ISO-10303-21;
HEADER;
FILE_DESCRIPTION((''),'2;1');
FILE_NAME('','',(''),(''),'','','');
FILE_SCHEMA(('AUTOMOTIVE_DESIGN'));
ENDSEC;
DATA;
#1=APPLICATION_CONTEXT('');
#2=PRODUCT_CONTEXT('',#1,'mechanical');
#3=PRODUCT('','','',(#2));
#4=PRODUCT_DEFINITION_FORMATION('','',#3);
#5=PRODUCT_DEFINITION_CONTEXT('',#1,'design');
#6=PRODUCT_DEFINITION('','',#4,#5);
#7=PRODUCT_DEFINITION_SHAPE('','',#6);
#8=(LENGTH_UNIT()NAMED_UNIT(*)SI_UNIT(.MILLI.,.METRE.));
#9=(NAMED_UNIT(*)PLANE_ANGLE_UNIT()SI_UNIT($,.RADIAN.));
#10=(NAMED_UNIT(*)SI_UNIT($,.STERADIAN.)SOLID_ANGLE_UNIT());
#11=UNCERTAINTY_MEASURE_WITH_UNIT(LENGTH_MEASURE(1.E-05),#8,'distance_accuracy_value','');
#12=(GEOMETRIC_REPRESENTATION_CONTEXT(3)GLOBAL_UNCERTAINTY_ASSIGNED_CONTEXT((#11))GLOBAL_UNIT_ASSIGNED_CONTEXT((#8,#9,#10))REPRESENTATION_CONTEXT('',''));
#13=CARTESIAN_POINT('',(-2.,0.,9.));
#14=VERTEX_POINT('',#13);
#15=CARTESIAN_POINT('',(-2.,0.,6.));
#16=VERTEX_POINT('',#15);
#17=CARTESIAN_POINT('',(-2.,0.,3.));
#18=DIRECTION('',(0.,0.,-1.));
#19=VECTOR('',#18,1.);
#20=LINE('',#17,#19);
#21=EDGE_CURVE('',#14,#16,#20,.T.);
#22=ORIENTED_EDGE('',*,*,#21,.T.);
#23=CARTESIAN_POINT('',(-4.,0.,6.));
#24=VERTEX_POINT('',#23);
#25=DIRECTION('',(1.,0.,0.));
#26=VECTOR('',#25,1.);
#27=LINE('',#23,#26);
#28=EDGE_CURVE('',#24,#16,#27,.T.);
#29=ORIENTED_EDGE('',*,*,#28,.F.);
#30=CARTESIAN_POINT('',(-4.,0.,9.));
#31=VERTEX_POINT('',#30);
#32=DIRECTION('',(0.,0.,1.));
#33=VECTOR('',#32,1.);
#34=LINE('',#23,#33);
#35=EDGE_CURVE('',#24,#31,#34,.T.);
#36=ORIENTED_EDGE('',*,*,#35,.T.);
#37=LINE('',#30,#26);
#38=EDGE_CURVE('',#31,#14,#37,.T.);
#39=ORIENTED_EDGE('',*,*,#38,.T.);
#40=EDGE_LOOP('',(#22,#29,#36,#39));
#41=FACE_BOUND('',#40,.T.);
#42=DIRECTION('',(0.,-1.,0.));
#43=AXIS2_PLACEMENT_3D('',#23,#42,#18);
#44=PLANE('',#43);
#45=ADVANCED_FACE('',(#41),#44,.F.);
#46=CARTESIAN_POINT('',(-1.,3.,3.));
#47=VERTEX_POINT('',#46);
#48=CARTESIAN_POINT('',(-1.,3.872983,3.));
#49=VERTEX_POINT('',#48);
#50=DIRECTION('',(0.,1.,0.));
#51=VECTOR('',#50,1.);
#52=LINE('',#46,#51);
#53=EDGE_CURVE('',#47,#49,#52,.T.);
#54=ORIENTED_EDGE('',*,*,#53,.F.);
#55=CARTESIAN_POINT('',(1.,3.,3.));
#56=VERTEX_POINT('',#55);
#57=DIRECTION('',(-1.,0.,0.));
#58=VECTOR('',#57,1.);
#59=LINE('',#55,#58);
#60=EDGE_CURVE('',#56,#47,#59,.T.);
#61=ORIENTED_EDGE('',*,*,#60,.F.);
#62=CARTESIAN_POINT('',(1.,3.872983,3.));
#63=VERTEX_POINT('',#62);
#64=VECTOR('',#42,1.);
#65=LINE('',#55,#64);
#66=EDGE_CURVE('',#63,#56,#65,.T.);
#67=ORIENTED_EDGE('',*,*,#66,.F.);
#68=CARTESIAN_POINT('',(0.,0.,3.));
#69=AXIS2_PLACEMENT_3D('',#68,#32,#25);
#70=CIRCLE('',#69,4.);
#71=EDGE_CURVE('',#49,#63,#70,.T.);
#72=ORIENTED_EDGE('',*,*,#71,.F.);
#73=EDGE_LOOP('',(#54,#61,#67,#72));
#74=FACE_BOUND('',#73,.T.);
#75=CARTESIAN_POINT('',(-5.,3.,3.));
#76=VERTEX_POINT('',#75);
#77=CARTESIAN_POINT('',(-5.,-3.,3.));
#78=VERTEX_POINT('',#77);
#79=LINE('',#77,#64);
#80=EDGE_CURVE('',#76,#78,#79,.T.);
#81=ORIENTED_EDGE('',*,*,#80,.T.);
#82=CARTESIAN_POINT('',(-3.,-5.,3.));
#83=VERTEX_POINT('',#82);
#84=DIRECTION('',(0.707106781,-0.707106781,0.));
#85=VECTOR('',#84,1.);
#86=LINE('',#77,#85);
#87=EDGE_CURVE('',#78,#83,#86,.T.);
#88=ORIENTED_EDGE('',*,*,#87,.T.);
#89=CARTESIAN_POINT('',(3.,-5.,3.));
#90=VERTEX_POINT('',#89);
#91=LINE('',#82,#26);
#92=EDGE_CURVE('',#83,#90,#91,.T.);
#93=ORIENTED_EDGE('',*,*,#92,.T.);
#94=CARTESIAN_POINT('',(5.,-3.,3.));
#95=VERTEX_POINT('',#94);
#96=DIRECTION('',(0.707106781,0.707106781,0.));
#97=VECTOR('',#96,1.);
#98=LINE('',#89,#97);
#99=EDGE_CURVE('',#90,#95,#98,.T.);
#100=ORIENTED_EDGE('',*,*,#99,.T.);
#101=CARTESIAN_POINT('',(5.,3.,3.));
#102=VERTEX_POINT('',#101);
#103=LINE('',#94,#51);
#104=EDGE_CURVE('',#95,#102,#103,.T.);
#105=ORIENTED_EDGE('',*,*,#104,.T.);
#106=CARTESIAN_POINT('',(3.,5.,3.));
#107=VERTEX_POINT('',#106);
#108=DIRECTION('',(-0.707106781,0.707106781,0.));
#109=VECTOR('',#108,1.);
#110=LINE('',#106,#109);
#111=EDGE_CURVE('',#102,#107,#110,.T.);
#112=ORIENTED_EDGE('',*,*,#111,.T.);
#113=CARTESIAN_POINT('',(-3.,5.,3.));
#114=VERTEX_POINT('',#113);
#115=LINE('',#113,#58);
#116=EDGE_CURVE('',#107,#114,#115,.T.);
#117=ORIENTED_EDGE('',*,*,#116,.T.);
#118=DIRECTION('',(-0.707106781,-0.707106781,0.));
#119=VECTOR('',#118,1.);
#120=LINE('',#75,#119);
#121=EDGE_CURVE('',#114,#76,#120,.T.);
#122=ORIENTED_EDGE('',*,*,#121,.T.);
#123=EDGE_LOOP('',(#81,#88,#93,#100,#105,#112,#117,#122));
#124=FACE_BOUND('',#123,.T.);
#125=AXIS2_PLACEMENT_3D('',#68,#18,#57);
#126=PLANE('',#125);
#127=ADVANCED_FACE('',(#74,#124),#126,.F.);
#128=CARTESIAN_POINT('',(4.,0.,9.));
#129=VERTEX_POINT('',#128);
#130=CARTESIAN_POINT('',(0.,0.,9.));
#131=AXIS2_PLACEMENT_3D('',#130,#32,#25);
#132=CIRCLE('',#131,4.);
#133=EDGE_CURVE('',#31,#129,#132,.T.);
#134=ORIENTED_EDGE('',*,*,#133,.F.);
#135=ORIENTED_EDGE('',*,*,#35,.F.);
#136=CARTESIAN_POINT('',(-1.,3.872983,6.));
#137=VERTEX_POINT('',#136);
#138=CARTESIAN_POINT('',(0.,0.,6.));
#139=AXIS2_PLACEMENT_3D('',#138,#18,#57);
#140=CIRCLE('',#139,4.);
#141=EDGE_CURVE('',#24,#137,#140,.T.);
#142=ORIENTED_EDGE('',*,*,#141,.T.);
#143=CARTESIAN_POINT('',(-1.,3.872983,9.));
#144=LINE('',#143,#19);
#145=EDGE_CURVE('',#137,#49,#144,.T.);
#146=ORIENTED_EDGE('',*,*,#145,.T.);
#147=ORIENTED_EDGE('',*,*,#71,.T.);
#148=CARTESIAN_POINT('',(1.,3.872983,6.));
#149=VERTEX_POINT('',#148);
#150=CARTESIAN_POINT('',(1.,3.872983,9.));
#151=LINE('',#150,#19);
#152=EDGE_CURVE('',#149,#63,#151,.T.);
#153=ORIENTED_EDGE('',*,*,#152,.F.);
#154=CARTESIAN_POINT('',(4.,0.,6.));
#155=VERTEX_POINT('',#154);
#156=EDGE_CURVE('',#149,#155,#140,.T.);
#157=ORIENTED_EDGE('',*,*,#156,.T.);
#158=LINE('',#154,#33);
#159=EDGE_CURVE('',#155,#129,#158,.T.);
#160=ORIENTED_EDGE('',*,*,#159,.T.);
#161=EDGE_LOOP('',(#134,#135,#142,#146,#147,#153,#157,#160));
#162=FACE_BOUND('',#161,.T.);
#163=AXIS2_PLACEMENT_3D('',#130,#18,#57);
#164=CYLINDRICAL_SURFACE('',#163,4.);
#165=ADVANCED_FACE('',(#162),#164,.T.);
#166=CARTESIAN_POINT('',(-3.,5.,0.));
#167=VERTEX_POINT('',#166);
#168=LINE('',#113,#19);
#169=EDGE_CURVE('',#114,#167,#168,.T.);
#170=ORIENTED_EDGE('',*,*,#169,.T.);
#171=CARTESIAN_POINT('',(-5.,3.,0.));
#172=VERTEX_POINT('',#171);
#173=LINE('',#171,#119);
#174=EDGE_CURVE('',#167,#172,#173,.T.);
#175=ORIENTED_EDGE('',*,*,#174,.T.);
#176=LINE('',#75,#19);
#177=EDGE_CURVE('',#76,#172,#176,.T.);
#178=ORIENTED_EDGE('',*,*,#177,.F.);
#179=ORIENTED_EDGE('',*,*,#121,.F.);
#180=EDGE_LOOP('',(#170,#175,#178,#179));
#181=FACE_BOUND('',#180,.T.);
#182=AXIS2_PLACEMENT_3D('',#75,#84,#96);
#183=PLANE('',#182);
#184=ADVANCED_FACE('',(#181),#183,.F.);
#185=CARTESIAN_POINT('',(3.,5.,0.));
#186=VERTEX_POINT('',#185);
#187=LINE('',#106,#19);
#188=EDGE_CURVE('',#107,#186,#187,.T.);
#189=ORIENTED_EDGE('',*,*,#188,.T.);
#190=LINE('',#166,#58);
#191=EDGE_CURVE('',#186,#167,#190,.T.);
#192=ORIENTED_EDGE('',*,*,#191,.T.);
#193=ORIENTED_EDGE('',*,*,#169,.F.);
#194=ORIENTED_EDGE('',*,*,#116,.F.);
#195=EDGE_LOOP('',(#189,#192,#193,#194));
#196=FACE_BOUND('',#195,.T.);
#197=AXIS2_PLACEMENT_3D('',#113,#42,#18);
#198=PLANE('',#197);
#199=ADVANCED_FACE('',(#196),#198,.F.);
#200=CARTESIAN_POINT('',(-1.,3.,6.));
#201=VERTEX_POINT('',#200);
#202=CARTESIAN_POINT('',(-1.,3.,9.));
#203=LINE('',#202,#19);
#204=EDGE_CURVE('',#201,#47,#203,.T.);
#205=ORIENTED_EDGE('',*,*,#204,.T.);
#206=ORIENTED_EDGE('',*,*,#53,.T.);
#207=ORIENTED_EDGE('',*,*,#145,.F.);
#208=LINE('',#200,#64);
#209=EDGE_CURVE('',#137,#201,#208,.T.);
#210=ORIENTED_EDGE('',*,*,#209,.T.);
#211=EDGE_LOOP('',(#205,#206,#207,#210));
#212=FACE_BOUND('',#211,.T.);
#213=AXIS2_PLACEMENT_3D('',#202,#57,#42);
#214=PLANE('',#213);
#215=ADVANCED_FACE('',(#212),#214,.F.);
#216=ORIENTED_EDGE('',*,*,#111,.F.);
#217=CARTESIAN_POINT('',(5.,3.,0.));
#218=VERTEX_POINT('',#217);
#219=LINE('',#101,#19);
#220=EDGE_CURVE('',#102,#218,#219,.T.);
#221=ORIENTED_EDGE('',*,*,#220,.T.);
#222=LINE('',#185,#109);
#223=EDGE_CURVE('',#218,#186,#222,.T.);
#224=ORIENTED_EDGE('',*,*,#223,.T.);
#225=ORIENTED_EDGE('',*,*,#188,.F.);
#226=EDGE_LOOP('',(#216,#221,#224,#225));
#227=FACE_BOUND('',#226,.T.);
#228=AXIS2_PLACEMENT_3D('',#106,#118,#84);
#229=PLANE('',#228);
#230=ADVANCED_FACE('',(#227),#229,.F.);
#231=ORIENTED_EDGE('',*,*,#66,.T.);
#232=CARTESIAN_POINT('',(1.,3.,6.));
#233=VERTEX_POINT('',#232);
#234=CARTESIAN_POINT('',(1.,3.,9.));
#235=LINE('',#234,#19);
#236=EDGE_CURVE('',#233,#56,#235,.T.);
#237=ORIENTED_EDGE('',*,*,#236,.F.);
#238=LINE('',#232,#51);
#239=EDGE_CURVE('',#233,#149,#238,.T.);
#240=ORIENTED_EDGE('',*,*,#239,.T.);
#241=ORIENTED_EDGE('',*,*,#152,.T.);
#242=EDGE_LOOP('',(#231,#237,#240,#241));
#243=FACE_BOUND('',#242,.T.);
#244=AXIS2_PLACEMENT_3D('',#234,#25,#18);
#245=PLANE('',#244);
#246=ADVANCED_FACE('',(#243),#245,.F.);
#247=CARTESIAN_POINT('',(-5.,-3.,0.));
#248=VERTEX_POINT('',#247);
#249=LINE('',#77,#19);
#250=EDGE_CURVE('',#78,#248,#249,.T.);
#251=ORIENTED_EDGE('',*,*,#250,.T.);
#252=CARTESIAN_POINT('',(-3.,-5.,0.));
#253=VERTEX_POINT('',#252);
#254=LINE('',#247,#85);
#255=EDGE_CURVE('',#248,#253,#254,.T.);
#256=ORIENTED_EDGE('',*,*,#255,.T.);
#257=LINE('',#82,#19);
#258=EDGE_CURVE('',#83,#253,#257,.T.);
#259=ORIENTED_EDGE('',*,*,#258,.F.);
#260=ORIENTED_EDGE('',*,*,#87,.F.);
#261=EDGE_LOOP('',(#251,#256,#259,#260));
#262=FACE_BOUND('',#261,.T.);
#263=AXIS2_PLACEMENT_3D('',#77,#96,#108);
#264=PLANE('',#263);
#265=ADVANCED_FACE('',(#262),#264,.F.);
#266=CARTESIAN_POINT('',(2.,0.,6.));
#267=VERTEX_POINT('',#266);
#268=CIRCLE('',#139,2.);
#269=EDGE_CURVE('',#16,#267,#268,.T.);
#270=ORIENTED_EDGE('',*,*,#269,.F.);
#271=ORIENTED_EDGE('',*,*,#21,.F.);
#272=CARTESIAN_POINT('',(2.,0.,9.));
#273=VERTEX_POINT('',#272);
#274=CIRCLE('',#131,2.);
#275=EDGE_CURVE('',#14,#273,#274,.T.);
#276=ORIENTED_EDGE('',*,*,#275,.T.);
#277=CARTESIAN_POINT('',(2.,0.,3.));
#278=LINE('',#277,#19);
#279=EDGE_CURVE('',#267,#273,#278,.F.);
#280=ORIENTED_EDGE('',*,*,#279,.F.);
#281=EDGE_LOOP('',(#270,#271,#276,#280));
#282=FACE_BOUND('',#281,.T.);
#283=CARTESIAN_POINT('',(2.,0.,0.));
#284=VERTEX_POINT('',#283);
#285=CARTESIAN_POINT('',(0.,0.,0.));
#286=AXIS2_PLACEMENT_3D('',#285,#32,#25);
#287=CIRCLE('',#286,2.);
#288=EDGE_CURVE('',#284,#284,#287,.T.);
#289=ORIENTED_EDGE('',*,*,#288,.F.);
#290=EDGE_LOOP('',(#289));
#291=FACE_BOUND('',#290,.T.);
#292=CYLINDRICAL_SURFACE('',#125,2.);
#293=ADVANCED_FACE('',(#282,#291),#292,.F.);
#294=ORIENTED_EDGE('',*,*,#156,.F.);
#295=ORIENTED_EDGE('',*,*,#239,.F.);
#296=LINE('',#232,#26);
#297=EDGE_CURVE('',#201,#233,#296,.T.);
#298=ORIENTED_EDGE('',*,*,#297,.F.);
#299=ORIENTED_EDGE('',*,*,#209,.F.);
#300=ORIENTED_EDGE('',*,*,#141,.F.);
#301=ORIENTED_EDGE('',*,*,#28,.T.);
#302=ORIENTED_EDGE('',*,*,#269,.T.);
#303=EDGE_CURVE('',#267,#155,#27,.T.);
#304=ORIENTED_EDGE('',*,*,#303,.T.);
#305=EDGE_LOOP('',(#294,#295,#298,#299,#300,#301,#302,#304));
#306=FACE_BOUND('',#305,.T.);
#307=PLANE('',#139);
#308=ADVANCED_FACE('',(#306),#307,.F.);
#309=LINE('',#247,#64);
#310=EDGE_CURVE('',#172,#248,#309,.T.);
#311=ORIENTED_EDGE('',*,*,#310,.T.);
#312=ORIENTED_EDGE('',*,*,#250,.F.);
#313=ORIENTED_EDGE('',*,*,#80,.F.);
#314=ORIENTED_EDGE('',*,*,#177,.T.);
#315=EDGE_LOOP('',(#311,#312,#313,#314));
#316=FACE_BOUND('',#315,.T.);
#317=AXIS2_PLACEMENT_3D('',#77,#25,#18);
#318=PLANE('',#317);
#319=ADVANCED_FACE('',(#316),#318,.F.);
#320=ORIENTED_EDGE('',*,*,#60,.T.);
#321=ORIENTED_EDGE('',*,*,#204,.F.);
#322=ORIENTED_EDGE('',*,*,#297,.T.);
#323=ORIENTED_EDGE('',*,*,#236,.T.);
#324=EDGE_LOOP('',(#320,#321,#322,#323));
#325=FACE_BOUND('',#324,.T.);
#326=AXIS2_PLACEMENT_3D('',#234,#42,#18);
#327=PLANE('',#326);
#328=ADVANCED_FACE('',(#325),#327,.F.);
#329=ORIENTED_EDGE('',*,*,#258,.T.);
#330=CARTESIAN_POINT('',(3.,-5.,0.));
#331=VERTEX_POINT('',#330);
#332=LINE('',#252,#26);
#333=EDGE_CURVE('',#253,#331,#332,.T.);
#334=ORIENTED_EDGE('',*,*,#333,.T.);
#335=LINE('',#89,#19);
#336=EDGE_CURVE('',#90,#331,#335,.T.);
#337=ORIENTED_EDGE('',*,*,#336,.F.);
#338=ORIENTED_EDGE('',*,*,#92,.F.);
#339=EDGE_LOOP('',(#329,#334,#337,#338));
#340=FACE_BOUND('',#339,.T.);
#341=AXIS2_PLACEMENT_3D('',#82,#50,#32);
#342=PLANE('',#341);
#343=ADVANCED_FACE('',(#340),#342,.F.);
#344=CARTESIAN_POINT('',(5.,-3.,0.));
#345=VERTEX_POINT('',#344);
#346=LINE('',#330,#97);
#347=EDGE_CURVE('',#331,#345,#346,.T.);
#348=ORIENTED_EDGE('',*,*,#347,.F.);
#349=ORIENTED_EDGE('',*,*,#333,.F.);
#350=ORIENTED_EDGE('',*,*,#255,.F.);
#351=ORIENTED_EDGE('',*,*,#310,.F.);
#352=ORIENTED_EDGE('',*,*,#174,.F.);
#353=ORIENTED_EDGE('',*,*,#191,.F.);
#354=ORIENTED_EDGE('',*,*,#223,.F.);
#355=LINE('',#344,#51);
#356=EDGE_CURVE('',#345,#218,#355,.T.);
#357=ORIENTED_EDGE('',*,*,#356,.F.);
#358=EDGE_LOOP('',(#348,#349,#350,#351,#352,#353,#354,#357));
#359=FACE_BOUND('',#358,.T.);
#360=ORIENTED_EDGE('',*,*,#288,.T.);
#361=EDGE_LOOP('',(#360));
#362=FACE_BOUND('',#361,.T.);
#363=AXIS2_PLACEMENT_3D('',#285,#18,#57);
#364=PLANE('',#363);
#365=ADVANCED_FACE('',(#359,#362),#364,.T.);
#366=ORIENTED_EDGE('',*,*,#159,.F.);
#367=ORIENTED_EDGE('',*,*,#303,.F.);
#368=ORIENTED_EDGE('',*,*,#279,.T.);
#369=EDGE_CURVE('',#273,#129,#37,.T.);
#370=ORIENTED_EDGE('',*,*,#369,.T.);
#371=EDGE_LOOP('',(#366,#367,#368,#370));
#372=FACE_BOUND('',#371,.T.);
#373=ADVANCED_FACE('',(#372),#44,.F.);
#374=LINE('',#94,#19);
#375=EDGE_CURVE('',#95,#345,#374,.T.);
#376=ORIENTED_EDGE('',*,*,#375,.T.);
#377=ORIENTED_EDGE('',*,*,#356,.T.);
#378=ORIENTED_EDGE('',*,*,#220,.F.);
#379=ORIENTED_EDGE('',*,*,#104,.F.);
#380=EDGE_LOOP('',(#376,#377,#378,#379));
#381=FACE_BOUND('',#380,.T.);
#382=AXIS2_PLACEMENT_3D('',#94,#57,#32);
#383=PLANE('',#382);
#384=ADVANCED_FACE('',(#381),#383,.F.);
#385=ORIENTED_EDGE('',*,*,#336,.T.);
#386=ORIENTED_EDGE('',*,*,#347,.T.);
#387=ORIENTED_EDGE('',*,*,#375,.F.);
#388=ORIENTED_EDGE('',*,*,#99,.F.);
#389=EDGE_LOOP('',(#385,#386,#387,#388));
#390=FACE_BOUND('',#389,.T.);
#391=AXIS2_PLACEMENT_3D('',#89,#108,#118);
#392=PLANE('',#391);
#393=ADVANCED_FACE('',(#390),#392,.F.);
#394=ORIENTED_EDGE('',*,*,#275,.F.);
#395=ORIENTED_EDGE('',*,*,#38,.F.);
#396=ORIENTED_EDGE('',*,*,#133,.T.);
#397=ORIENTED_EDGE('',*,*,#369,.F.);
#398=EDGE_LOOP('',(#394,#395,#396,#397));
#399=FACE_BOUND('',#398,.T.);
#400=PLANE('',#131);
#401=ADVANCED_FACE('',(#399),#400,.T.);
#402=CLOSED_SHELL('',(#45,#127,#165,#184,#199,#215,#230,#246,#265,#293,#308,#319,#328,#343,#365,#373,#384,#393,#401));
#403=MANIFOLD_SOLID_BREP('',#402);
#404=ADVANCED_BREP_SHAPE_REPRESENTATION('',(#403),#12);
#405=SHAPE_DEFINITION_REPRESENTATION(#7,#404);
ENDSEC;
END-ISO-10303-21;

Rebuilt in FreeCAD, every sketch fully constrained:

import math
import FreeCAD as App
import Part
import Sketcher
from FreeCAD import Vector

doc = App.newDocument("Part")
body = doc.addObject("PartDesign::Body", "Body")

# Sketch on XY plane
sketch1 = body.newObject("Sketcher::SketchObject", "Sketch")
sketch1.AttachmentSupport = (doc.getObject("XY_Plane"), [""])
sketch1.MapMode = "FlatFace"
sketch1.addGeometry([
    Part.LineSegment(Vector(-3, 5, 0), Vector(-5, 3, 0)),  # 0
    Part.LineSegment(Vector(-5, 3, 0), Vector(-5, -3, 0)),  # 1
    Part.LineSegment(Vector(-5, -3, 0), Vector(-3, -5, 0)),  # 2
    Part.LineSegment(Vector(-3, -5, 0), Vector(3, -5, 0)),  # 3
    Part.LineSegment(Vector(3, -5, 0), Vector(5, -3, 0)),  # 4
    Part.LineSegment(Vector(5, -3, 0), Vector(5, 3, 0)),  # 5
    Part.LineSegment(Vector(5, 3, 0), Vector(3, 5, 0)),  # 6
    Part.LineSegment(Vector(3, 5, 0), Vector(-3, 5, 0)),  # 7
    Part.Circle(Vector(0, 0, 0), Vector(0, 0, 1), 2),  # 8
], False)
sketch1.addConstraint([
    Sketcher.Constraint("Coincident", 0, 2, 1, 1),
    Sketcher.Constraint("Coincident", 1, 2, 2, 1),
    Sketcher.Constraint("Coincident", 2, 2, 3, 1),
    Sketcher.Constraint("Coincident", 3, 2, 4, 1),
    Sketcher.Constraint("Coincident", 4, 2, 5, 1),
    Sketcher.Constraint("Coincident", 5, 2, 6, 1),
    Sketcher.Constraint("Coincident", 6, 2, 7, 1),
    Sketcher.Constraint("Coincident", 7, 2, 0, 1),
    Sketcher.Constraint("Vertical", 1),
    Sketcher.Constraint("Horizontal", 3),
    Sketcher.Constraint("Vertical", 5),
    Sketcher.Constraint("Horizontal", 7),
    Sketcher.Constraint("Coincident", 8, 3, -1, 1),
    Sketcher.Constraint("Symmetric", 0, 2, 4, 2, -1, 1),
    Sketcher.Constraint("Symmetric", 2, 2, 6, 2, -1, 1),
    Sketcher.Constraint("Perpendicular", 0, 2),
    Sketcher.Constraint("Perpendicular", 2, 4),
    Sketcher.Constraint("Perpendicular", 4, 6),
    Sketcher.Constraint("Horizontal", 1, 2, 4, 2),
    Sketcher.Constraint("Vertical", 3, 2, 6, 2),
    Sketcher.Constraint("Equal", 7, 1),
    Sketcher.Constraint("Diameter", 8, 4.0),
    Sketcher.Constraint("DistanceX", 3, 1, 3, 2, 6.0),
    Sketcher.Constraint("DistanceX", 0, 2, -1, 1, 5.0),
])
pad1 = body.newObject("PartDesign::Pad", "Pad")
pad1.Profile = sketch1
pad1.Length = 3

# Sketch on XY plane
sketch2 = body.newObject("Sketcher::SketchObject", "Sketch001")
sketch2.AttachmentSupport = (doc.getObject("XY_Plane"), [""])
sketch2.MapMode = "FlatFace"
sketch2.AttachmentOffset = App.Placement(Vector(0, 0, 3), App.Rotation())
sketch2.addGeometry([
    Part.LineSegment(Vector(1, 3, 0), Vector(-1, 3, 0)),  # 0
    Part.LineSegment(Vector(-1, 3, 0), Vector(-1, 3.9, 0)),  # 1
    Part.ArcOfCircle(Part.Circle(Vector(0, 0, 0), Vector(0, 0, 1), 4), math.radians(104), math.radians(436)),  # 2
    Part.LineSegment(Vector(1, 3.9, 0), Vector(1, 3, 0)),  # 3
    Part.Circle(Vector(0, 0, 0), Vector(0, 0, 1), 2),  # 4
], False)
sketch2.addConstraint([
    Sketcher.Constraint("Coincident", 0, 2, 1, 1),
    Sketcher.Constraint("Coincident", 1, 2, 2, 1),
    Sketcher.Constraint("Coincident", 2, 2, 3, 1),
    Sketcher.Constraint("Coincident", 3, 2, 0, 1),
    Sketcher.Constraint("Horizontal", 0),
    Sketcher.Constraint("Vertical", 1),
    Sketcher.Constraint("Vertical", 3),
    Sketcher.Constraint("Coincident", 2, 3, -1, 1),
    Sketcher.Constraint("Coincident", 4, 3, -1, 1),
    Sketcher.Constraint("Horizontal", 1, 2, 2, 2),
    Sketcher.Constraint("Diameter", 4, 4.0),
    Sketcher.Constraint("Radius", 2, 4.0),
    Sketcher.Constraint("DistanceX", 0, 2, 0, 1, 2.0),
    Sketcher.Constraint("DistanceY", -1, 1, 0, 2, 3.0),
])
pad2 = body.newObject("PartDesign::Pad", "Pad001")
pad2.Profile = sketch2
pad2.Length = 6

# Sketch on XY plane
sketch3 = body.newObject("Sketcher::SketchObject", "Sketch002")
sketch3.AttachmentSupport = (doc.getObject("XY_Plane"), [""])
sketch3.MapMode = "FlatFace"
sketch3.AttachmentOffset = App.Placement(Vector(0, 0, 9), App.Rotation())
sketch3.addGeometry([
    Part.LineSegment(Vector(-4, 4.6, 0), Vector(-4, 0, 0)),
    Part.LineSegment(Vector(-4, 0, 0), Vector(4, 0, 0)),
    Part.LineSegment(Vector(4, 0, 0), Vector(4, 4.6, 0)),
    Part.LineSegment(Vector(4, 4.6, 0), Vector(-4, 4.6, 0)),
], False)
sketch3.addConstraint([
    Sketcher.Constraint("Coincident", 0, 2, 1, 1),
    Sketcher.Constraint("Coincident", 1, 2, 2, 1),
    Sketcher.Constraint("Coincident", 2, 2, 3, 1),
    Sketcher.Constraint("Coincident", 3, 2, 0, 1),
    Sketcher.Constraint("Vertical", 0),
    Sketcher.Constraint("Horizontal", 1),
    Sketcher.Constraint("Vertical", 2),
    Sketcher.Constraint("Horizontal", 3),
    Sketcher.Constraint("Symmetric", 0, 2, 1, 2, -1, 1),
    Sketcher.Constraint("DistanceX", 1, 1, 1, 2, 8.0),
    Sketcher.Constraint("DistanceY", 0, 2, 0, 1, 4.60339),
])
pocket1 = body.newObject("PartDesign::Pocket", "Pocket")
pocket1.Profile = sketch3
pocket1.Length = 3

doc.recompute()
